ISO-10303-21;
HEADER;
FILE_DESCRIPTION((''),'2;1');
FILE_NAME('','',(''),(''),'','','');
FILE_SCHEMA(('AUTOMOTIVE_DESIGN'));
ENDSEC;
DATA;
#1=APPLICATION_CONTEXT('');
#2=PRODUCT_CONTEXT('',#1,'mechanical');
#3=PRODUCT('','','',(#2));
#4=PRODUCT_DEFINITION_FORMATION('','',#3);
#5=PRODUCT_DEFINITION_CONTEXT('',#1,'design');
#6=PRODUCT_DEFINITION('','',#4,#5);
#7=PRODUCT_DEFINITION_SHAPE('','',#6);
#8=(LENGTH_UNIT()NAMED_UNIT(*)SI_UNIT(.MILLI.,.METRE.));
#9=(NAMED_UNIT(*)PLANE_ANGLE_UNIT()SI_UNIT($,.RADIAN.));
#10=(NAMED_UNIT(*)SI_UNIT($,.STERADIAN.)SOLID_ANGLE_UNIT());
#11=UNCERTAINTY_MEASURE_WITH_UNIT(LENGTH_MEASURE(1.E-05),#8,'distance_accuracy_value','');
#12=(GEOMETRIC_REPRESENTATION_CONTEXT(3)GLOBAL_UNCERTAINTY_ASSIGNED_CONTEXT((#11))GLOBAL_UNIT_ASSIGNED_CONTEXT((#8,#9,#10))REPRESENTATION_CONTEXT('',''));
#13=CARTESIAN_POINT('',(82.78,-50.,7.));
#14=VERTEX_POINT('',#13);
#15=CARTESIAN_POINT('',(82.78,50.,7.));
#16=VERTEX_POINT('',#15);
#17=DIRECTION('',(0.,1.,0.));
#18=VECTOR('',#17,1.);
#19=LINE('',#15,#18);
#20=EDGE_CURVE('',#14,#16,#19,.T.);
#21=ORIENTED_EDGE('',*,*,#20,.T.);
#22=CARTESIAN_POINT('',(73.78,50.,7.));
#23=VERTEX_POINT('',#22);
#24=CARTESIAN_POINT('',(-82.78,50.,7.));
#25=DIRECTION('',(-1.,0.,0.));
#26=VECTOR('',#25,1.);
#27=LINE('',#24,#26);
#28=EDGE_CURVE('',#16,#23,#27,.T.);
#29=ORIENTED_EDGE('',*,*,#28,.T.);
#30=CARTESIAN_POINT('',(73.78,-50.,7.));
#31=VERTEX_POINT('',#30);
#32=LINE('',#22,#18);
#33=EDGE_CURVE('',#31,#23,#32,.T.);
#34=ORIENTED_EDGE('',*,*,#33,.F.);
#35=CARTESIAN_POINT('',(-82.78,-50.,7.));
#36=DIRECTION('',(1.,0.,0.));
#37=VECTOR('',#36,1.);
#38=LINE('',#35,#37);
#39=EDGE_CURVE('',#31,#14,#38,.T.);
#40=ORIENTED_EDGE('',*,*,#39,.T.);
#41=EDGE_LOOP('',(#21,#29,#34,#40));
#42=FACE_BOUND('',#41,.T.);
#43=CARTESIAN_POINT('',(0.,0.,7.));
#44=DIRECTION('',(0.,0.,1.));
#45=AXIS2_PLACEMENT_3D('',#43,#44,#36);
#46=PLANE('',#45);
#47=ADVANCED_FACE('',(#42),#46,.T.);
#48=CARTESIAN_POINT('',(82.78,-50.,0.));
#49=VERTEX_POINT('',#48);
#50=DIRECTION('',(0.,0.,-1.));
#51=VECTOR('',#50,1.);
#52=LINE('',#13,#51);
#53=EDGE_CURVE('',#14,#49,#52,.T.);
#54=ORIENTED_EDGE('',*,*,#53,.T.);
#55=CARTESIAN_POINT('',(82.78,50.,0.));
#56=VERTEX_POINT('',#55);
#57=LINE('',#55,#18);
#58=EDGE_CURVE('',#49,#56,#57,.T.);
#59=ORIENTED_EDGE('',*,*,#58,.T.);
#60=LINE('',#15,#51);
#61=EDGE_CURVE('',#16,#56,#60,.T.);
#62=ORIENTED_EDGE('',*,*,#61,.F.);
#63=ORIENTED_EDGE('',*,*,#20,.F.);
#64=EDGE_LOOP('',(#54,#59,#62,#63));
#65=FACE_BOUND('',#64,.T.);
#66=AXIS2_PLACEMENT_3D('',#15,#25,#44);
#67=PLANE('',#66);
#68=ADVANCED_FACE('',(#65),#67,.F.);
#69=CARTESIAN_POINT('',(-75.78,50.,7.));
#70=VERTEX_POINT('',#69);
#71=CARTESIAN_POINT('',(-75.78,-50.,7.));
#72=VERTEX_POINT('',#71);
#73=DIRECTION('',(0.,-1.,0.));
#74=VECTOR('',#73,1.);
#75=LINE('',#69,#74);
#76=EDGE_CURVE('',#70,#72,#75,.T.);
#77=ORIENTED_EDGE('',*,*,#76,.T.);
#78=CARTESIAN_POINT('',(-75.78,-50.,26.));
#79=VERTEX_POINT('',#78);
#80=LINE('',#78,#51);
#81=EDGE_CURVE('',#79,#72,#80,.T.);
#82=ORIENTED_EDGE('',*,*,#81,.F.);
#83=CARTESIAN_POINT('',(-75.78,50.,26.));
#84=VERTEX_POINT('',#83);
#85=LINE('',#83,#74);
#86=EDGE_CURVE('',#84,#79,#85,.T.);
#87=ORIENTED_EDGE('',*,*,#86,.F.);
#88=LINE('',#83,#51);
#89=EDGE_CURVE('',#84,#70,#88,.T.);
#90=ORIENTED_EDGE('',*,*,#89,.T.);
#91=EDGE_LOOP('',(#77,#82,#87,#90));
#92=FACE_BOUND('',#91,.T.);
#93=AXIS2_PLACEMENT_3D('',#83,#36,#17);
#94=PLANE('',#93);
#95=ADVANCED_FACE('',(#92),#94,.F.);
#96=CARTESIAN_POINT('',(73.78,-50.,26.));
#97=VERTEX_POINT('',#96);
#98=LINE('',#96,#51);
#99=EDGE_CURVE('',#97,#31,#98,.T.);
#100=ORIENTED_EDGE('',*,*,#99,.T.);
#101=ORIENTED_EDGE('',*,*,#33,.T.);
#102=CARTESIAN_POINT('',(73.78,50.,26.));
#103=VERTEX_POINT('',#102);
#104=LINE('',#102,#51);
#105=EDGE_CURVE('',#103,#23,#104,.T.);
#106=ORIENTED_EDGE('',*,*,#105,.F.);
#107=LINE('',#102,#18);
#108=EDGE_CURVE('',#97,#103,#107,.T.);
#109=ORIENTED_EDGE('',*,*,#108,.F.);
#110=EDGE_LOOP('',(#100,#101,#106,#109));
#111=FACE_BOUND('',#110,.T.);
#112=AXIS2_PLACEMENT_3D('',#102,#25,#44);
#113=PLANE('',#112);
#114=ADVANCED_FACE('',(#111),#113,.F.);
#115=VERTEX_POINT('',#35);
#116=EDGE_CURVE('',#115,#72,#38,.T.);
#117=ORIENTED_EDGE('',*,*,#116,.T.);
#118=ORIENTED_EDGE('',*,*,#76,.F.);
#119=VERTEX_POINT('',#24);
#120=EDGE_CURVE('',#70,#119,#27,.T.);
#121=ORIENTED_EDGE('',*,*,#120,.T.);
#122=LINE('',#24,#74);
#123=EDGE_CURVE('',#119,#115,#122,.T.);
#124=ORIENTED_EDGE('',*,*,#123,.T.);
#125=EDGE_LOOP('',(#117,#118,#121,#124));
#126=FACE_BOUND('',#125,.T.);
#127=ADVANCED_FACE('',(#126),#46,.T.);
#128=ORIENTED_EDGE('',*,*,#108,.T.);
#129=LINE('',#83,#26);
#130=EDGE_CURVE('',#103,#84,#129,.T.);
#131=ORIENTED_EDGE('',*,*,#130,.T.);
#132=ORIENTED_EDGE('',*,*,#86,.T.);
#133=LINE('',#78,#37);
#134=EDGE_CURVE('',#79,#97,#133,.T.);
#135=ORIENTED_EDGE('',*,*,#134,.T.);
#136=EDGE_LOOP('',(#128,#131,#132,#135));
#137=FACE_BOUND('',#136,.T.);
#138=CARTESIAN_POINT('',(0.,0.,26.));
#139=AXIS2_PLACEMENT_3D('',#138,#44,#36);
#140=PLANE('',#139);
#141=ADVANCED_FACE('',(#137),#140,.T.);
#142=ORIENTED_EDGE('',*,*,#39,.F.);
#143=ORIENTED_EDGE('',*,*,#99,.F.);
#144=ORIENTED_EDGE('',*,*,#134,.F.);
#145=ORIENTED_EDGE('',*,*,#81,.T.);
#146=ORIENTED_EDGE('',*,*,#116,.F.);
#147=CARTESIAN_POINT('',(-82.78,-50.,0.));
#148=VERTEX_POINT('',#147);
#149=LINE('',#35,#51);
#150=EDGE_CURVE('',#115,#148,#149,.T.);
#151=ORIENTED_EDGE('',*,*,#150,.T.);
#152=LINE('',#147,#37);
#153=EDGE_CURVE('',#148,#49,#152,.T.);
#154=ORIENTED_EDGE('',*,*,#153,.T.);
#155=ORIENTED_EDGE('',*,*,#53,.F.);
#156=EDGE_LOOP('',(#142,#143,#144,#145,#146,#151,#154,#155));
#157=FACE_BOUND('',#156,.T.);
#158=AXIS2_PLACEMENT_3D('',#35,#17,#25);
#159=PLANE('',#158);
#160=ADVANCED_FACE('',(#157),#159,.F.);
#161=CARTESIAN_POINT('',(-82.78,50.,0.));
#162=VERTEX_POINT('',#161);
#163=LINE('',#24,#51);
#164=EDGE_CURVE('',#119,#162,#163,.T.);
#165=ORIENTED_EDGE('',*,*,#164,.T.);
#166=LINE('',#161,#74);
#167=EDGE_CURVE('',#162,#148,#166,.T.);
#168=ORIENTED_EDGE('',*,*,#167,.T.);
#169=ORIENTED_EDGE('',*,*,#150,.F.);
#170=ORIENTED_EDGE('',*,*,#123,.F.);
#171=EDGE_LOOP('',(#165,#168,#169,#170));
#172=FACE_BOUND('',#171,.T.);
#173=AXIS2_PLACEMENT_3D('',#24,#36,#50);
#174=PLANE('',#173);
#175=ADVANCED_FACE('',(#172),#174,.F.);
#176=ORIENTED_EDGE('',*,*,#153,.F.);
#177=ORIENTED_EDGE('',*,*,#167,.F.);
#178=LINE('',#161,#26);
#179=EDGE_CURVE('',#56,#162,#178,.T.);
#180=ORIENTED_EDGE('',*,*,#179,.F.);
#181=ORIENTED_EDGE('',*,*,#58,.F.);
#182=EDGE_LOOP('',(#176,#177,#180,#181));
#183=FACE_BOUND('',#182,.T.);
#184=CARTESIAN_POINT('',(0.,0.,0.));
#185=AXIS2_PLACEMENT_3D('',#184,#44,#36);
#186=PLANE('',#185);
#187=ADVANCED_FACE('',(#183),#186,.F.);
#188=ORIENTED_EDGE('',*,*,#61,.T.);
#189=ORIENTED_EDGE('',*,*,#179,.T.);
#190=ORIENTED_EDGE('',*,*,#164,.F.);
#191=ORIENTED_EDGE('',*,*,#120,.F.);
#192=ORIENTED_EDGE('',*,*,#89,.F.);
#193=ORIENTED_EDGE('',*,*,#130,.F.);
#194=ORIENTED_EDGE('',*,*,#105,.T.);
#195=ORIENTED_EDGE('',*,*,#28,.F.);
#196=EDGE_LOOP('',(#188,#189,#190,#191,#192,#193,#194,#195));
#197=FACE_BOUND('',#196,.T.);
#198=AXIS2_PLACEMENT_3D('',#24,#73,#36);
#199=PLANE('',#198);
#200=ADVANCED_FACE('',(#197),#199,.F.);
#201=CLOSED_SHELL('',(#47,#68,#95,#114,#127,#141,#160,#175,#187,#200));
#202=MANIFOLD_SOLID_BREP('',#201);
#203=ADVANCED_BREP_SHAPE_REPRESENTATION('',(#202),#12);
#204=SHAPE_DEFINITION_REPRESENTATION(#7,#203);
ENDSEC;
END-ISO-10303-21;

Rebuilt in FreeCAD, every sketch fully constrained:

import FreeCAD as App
import Part
import Sketcher


def add_polygon(sketch, points):
    """Adds a closed chain of lines whose ends are joined by coincident constraints."""
    first, n = sketch.GeometryCount, len(points)
    for a, b in zip(points, points[1:] + points[:1]):
        sketch.addGeometry(Part.LineSegment(App.Vector(*a, 0), App.Vector(*b, 0)), False)
    for i in range(n):
        sketch.addConstraint(Sketcher.Constraint("Coincident", first + i, 2, first + (i + 1) % n, 1))

doc = App.newDocument("Part")
body = doc.addObject("PartDesign::Body", "Body")

# Sketch on XY plane
sketch1 = body.newObject("Sketcher::SketchObject", "Sketch")
sketch1.AttachmentSupport = (doc.getObject("XY_Plane"), [""])
sketch1.MapMode = "FlatFace"
add_polygon(sketch1, [(-83, 50), (-83, -50), (83, -50), (83, 50)])  # lines 0-3
sketch1.addConstraint([
    Sketcher.Constraint("Vertical", 0),
    Sketcher.Constraint("Horizontal", 1),
    Sketcher.Constraint("Vertical", 2),
    Sketcher.Constraint("Horizontal", 3),
    Sketcher.Constraint("Symmetric", 0, 2, 2, 2, -1, 1),
    Sketcher.Constraint("DistanceY", 0, 2, 0, 1, 100.0),
    Sketcher.Constraint("DistanceX", 1, 1, 1, 2, 165.56),
])
pad1 = body.newObject("PartDesign::Pad", "Pad")
pad1.Profile = sketch1
pad1.Length = 7

# Sketch on XY plane
sketch2 = body.newObject("Sketcher::SketchObject", "Sketch001")
sketch2.AttachmentSupport = (doc.getObject("XY_Plane"), [""])
sketch2.MapMode = "FlatFace"
sketch2.AttachmentOffset = App.Placement(App.Vector(0, 0, 7), App.Rotation())
add_polygon(sketch2, [(-76, 50), (-76, -50), (74, -50), (74, 50)])  # lines 0-3
sketch2.addConstraint([
    Sketcher.Constraint("Vertical", 0),
    Sketcher.Constraint("Horizontal", 1),
    Sketcher.Constraint("Vertical", 2),
    Sketcher.Constraint("Horizontal", 3),
    Sketcher.Constraint("DistanceY", 0, 2, 0, 1, 100.0),
    Sketcher.Constraint("DistanceY", 0, 2, -1, 1, 50.0),
    Sketcher.Constraint("DistanceX", 1, 1, 1, 2, 149.56),
    Sketcher.Constraint("DistanceX", 0, 2, -1, 1, 75.78),
])
pad2 = body.newObject("PartDesign::Pad", "Pad001")
pad2.Profile = sketch2
pad2.Length = 19

doc.recompute()
